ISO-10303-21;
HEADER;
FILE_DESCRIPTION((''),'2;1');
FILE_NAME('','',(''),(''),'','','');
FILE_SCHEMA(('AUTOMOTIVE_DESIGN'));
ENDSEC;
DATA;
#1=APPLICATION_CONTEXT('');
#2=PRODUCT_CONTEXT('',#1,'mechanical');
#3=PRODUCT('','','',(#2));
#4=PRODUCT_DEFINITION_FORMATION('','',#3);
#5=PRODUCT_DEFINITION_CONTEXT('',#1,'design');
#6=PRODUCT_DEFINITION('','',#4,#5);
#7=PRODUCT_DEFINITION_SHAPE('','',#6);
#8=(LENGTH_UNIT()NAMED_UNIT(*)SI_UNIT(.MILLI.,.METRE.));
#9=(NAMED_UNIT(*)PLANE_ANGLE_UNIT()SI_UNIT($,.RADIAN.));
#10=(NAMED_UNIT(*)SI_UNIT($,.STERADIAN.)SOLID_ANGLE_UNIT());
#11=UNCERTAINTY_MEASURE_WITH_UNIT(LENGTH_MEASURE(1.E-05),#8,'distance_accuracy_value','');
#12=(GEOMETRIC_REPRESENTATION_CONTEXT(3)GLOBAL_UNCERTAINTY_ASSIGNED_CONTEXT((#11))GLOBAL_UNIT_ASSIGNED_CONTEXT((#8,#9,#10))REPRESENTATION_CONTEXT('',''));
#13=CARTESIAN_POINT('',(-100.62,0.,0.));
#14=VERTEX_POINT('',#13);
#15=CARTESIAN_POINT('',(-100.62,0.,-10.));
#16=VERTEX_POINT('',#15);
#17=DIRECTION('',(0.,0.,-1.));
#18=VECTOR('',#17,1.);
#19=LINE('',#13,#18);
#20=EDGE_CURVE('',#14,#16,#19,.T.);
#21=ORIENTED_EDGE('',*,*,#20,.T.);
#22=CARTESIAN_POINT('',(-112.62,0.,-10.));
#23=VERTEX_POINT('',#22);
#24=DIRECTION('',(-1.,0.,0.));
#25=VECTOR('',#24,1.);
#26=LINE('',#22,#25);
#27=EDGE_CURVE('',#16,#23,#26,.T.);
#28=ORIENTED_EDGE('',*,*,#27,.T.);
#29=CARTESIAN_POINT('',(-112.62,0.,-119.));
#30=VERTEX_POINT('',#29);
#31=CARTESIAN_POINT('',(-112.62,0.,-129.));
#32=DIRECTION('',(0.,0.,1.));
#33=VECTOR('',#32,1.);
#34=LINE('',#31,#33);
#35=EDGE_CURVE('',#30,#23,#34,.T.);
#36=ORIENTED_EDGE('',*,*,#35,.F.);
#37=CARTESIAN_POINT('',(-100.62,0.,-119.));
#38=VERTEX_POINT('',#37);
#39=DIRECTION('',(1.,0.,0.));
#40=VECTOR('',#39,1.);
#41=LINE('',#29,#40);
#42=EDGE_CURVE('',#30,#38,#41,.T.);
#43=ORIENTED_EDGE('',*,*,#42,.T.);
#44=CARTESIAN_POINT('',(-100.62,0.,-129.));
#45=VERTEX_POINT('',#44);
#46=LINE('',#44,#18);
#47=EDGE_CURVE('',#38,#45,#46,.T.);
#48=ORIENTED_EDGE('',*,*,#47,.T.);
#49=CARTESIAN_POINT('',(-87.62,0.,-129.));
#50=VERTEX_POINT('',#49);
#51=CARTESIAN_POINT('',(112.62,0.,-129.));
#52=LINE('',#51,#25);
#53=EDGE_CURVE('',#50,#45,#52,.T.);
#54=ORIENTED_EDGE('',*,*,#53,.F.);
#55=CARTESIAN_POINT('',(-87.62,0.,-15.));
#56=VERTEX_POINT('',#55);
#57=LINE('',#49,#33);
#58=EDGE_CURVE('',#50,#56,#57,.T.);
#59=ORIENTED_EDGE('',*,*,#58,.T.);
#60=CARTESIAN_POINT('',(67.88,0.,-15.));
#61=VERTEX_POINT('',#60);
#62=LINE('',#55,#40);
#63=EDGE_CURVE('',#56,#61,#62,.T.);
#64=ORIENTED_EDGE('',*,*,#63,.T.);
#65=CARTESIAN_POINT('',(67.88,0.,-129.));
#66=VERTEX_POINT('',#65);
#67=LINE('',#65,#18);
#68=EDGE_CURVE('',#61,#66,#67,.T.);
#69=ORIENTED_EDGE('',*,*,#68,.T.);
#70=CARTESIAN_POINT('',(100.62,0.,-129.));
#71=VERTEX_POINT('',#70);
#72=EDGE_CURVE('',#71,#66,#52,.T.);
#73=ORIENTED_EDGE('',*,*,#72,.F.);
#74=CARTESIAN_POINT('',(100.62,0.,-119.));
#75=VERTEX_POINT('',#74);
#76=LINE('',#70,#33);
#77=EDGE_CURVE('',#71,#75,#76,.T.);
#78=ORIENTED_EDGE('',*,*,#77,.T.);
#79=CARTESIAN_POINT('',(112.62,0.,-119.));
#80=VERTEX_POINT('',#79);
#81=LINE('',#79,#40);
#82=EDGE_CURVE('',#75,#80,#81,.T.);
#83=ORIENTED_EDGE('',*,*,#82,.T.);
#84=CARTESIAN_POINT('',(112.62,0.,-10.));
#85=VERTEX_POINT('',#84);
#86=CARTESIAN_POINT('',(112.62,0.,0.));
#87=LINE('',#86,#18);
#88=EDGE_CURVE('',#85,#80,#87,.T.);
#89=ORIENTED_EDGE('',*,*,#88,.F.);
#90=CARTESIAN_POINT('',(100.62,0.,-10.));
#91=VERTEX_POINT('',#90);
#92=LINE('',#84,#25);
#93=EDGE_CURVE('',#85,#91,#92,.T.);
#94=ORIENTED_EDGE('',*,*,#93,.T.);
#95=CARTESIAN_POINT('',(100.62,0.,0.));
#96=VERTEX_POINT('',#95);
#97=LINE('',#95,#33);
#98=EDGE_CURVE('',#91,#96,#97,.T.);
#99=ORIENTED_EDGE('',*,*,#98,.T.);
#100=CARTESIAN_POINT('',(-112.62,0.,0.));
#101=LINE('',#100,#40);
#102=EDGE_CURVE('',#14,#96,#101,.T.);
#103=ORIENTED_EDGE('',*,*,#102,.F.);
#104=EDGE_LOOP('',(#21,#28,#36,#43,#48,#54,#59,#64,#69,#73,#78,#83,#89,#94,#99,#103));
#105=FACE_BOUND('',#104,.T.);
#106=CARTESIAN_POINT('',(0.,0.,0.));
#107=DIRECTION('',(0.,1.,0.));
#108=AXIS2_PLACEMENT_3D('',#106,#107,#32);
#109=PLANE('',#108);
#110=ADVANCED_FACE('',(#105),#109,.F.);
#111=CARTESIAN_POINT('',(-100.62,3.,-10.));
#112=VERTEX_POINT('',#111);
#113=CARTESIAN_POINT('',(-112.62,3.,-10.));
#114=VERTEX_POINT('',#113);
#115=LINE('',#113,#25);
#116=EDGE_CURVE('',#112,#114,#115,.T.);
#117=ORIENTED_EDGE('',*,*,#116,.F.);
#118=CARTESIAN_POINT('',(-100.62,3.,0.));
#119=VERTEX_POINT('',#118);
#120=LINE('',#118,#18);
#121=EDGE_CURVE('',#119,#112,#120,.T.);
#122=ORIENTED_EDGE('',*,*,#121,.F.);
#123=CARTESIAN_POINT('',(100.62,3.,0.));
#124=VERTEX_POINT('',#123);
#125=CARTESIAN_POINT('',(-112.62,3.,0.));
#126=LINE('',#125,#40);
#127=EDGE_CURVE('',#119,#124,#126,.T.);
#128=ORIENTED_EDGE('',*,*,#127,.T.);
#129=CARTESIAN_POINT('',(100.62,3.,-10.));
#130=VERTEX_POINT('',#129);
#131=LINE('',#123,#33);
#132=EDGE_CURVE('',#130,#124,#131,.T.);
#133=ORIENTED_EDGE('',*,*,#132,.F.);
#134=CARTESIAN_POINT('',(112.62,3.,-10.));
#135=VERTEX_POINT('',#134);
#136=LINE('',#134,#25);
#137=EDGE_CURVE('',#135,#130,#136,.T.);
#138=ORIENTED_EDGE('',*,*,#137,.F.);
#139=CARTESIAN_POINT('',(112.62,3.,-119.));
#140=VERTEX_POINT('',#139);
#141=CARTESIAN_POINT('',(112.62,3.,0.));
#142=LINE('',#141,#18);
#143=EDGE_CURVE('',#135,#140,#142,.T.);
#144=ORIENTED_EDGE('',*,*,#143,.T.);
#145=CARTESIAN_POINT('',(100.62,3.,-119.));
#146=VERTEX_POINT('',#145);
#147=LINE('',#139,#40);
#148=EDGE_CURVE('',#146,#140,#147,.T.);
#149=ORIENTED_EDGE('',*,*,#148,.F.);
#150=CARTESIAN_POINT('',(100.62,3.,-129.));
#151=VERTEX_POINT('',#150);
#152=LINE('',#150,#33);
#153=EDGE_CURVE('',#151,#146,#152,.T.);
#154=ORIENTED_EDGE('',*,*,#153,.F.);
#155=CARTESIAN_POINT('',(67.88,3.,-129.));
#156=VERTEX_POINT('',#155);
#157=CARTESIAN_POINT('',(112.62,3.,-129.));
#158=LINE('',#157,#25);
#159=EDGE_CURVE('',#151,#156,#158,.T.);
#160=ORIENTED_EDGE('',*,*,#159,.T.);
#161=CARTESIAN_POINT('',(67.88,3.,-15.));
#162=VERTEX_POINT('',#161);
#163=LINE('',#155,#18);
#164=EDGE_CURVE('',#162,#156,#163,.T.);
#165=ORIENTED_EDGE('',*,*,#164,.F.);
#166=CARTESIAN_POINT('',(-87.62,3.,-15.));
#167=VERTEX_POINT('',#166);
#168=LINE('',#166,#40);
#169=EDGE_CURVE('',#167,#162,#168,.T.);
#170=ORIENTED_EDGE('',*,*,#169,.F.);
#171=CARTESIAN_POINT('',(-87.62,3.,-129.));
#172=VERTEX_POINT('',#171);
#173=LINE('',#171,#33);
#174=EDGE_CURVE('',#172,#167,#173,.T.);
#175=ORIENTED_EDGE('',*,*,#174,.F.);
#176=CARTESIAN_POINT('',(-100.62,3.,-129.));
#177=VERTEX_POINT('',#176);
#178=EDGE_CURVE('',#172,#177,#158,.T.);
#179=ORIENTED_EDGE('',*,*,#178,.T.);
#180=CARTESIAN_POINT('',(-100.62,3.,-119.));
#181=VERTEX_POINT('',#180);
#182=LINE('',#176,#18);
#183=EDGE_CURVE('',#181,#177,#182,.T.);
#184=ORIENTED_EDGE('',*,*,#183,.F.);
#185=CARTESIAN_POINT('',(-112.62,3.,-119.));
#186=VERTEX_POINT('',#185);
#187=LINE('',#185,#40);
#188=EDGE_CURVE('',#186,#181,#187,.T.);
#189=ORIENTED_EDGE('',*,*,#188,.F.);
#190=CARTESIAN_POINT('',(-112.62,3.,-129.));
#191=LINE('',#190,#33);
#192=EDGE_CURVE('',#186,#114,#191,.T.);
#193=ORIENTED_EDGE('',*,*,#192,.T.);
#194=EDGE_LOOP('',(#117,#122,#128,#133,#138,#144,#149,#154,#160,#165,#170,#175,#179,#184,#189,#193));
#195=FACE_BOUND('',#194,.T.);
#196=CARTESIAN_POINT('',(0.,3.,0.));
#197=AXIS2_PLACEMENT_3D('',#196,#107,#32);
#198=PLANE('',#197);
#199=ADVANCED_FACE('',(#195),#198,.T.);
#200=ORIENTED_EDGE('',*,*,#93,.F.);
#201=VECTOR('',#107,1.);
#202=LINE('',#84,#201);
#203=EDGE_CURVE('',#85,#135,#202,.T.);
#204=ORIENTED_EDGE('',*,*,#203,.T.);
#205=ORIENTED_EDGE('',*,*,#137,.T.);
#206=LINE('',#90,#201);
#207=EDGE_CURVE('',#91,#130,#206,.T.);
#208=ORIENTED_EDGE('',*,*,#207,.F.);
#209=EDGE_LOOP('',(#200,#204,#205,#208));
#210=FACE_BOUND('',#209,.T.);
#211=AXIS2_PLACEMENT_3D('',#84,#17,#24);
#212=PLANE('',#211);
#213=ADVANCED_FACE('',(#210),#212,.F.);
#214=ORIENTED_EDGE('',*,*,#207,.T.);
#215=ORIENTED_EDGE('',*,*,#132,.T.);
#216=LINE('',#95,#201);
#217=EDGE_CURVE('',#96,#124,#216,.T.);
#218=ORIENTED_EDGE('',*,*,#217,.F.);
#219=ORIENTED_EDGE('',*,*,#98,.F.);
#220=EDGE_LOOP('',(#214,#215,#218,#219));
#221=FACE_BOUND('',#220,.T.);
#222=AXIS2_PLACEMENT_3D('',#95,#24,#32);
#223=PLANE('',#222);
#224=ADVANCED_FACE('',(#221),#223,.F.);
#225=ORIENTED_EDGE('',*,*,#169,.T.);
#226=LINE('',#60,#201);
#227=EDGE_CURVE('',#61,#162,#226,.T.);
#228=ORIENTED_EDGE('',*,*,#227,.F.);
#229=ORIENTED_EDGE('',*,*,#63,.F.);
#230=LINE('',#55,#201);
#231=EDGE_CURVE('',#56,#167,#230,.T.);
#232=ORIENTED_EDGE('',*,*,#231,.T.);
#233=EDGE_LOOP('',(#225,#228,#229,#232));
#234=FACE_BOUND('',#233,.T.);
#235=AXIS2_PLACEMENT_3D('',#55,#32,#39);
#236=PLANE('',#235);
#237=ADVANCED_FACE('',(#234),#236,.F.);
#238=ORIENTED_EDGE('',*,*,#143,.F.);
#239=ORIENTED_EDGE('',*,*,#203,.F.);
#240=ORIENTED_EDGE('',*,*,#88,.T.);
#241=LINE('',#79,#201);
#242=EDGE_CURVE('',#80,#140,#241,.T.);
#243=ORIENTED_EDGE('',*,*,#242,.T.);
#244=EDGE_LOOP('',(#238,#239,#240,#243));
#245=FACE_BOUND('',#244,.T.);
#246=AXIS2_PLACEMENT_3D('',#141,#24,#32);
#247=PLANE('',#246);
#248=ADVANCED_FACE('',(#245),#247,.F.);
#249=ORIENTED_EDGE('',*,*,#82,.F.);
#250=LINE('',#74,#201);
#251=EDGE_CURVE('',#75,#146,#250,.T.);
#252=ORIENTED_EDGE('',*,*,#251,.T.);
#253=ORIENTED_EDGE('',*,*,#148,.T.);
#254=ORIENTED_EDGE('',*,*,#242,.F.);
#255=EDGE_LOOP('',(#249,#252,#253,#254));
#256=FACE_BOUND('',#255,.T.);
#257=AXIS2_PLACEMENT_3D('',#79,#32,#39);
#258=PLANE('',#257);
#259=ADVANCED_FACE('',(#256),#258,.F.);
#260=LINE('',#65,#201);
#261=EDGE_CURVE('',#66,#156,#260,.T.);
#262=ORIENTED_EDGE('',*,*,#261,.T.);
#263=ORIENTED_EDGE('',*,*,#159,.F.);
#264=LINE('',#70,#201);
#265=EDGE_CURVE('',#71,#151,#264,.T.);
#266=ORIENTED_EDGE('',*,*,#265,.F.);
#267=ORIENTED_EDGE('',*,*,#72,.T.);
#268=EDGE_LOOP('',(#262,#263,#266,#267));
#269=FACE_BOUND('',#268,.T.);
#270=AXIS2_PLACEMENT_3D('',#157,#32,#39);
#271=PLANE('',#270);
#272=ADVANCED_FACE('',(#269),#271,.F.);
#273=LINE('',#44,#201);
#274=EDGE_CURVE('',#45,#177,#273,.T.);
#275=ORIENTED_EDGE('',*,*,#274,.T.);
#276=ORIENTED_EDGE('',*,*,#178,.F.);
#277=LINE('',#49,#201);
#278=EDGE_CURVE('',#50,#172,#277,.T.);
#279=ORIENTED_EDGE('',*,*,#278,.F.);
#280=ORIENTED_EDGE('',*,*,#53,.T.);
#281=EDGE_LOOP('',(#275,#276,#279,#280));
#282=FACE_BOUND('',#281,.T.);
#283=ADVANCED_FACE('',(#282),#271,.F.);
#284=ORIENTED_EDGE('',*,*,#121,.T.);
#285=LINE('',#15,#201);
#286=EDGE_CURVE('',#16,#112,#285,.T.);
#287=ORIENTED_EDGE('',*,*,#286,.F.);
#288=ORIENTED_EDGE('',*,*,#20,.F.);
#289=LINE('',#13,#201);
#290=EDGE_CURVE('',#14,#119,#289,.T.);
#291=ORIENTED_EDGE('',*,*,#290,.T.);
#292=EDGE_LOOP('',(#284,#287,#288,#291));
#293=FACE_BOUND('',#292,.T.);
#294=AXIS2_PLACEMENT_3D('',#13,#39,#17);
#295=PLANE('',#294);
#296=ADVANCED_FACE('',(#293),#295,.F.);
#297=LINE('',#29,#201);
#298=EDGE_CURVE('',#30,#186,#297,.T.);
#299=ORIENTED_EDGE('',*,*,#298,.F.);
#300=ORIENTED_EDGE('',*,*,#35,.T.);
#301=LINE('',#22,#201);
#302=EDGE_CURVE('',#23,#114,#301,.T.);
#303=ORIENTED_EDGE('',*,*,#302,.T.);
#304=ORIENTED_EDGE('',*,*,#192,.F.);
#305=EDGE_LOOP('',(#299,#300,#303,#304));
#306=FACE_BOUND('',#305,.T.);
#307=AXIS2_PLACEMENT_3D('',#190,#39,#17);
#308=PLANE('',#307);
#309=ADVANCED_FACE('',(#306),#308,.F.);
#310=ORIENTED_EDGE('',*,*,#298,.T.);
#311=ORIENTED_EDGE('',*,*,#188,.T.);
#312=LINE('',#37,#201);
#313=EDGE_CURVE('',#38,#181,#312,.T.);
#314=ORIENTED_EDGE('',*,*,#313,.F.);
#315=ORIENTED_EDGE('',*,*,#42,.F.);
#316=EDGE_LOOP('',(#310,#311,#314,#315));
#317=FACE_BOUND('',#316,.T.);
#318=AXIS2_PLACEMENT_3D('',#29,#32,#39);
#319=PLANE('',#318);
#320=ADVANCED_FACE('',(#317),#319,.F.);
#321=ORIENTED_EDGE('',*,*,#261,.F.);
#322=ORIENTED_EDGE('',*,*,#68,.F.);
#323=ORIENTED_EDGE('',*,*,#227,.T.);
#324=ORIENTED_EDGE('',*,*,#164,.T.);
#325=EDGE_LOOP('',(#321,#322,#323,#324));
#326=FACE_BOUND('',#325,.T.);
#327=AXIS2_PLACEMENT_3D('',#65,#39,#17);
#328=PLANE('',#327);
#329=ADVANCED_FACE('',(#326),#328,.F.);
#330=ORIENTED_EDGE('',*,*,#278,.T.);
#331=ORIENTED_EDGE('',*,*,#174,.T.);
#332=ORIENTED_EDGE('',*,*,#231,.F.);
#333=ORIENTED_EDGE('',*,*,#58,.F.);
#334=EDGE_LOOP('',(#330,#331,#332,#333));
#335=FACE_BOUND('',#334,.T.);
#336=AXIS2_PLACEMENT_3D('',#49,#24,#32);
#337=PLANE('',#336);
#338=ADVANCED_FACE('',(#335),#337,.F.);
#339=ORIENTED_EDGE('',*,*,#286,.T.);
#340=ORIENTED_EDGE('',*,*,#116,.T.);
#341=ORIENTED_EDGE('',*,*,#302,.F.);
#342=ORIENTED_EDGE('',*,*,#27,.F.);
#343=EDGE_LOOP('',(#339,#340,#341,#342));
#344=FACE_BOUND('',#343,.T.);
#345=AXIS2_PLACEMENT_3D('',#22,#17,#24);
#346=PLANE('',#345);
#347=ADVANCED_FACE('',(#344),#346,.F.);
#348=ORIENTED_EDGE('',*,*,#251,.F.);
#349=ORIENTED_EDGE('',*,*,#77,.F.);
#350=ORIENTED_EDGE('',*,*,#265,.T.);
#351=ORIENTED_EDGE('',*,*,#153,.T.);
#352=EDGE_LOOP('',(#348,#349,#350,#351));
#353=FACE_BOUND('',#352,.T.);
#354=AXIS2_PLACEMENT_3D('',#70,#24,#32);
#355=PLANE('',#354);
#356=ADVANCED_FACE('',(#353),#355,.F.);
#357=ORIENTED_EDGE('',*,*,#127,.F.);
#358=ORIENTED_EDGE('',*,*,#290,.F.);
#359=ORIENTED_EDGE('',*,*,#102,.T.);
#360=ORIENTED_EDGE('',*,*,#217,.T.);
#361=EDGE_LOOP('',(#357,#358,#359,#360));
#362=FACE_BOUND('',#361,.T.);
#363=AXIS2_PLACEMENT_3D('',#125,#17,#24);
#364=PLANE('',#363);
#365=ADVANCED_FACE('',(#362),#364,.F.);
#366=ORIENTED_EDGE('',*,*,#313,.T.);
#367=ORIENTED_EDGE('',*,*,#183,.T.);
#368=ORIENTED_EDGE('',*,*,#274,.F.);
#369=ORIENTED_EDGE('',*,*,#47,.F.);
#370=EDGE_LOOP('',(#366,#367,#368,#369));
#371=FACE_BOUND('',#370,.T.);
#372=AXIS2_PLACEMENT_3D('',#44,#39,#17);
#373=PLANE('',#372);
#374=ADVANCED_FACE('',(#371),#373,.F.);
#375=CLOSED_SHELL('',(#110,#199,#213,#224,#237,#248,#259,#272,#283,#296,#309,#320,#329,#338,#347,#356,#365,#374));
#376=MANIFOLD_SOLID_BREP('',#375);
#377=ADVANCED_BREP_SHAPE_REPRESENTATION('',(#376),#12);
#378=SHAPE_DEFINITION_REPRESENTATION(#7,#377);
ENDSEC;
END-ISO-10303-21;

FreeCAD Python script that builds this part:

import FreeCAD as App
import Part
import Sketcher
from FreeCAD import Vector


def add_polygon(sketch, points):
    """Adds a closed chain of lines whose ends are joined by coincident constraints."""
    first, n = sketch.GeometryCount, len(points)
    for a, b in zip(points, points[1:] + points[:1]):
        sketch.addGeometry(Part.LineSegment(App.Vector(*a, 0), App.Vector(*b, 0)), False)
    for i in range(n):
        sketch.addConstraint(Sketcher.Constraint("Coincident", first + i, 2, first + (i + 1) % n, 1))

doc = App.newDocument("Part")
body = doc.addObject("PartDesign::Body", "Body")

sketch1 = doc.addObject("Sketcher::SketchObject", "Sketch")
body.addObject(sketch1)
sketch1.AttachmentSupport = (doc.XZ_Plane, [""])
sketch1.MapMode = "FlatFace"
add_polygon(sketch1, [(-113, -129), (-113, 0), (113, 0), (113, -129)])
sketch1.addConstraint(Sketcher.Constraint("Vertical", 0))
sketch1.addConstraint(Sketcher.Constraint("Horizontal", 1))
sketch1.addConstraint(Sketcher.Constraint("Vertical", 2))
sketch1.addConstraint(Sketcher.Constraint("Horizontal", 3))
sketch1.addConstraint(Sketcher.Constraint("Symmetric", 0, 2, 1, 2, -1, 1))
sketch1.addConstraint(Sketcher.Constraint("DistanceY", 0, 1, 0, 2, 129.0))
sketch1.addConstraint(Sketcher.Constraint("DistanceX", 1, 1, 1, 2, 225.24))
pad1 = doc.addObject("PartDesign::Pad", "Pad")
body.addObject(pad1)
pad1.Profile = sketch1
pad1.Length = 3
pad1.Reversed = True

sketch2 = doc.addObject("Sketcher::SketchObject", "Sketch001")
body.addObject(sketch2)
sketch2.AttachmentSupport = (doc.XZ_Plane, [""])
sketch2.MapMode = "FlatFace"
sketch2.AttachmentOffset = App.Placement(Vector(0, 0, -3), App.Rotation())
add_polygon(sketch2, [(-113, -129), (-113, -119), (-101, -119), (-101, -129)])
add_polygon(sketch2, [(101, -129), (101, -119), (113, -119), (113, -129)])
add_polygon(sketch2, [(101, -10), (101, 0), (113, 0), (113, -10)])
add_polygon(sketch2, [(-113, -10), (-113, 0), (-101, 0), (-101, -10)])
add_polygon(sketch2, [(-88, -129), (-88, -15), (68, -15), (68, -129)])
sketch2.addConstraint(Sketcher.Constraint("Vertical", 0))
sketch2.addConstraint(Sketcher.Constraint("Horizontal", 1))
sketch2.addConstraint(Sketcher.Constraint("Vertical", 2))
sketch2.addConstraint(Sketcher.Constraint("Horizontal", 3))
sketch2.addConstraint(Sketcher.Constraint("Vertical", 4))
sketch2.addConstraint(Sketcher.Constraint("Horizontal", 5))
sketch2.addConstraint(Sketcher.Constraint("Vertical", 6))
sketch2.addConstraint(Sketcher.Constraint("Horizontal", 7))
sketch2.addConstraint(Sketcher.Constraint("Vertical", 8))
sketch2.addConstraint(Sketcher.Constraint("Horizontal", 9))
sketch2.addConstraint(Sketcher.Constraint("Vertical", 10))
sketch2.addConstraint(Sketcher.Constraint("Horizontal", 11))
sketch2.addConstraint(Sketcher.Constraint("Vertical", 12))
sketch2.addConstraint(Sketcher.Constraint("Horizontal", 13))
sketch2.addConstraint(Sketcher.Constraint("Vertical", 14))
sketch2.addConstraint(Sketcher.Constraint("Horizontal", 15))
sketch2.addConstraint(Sketcher.Constraint("Vertical", 16))
sketch2.addConstraint(Sketcher.Constraint("Horizontal", 17))
sketch2.addConstraint(Sketcher.Constraint("Vertical", 18))
sketch2.addConstraint(Sketcher.Constraint("Horizontal", 19))
sketch2.addConstraint(Sketcher.Constraint("Symmetric", 9, 2, 12, 2, -1, 1))
sketch2.addConstraint(Sketcher.Constraint("Symmetric", 1, 2, 4, 2, -2))
sketch2.addConstraint(Sketcher.Constraint("Symmetric", 3, 2, 6, 2, -2))
sketch2.addConstraint(Sketcher.Constraint("Symmetric", 8, 2, 13, 2, -2))
sketch2.addConstraint(Sketcher.Constraint("Horizontal", 11, 2, 14, 2))
sketch2.addConstraint(Sketcher.Constraint("Horizontal", 7, 2, 18, 2))
sketch2.addConstraint(Sketcher.Constraint("Vertical", 7, 2, 8, 2))
sketch2.addConstraint(Sketcher.Constraint("Vertical", 6, 2, 9, 2))
sketch2.addConstraint(Sketcher.Constraint("Equal", 6, 8))
sketch2.addConstraint(Sketcher.Constraint("DistanceX", 1, 1, 1, 2, 12.0))
sketch2.addConstraint(Sketcher.Constraint("DistanceY", 0, 1, 0, 2, 10.0))
sketch2.addConstraint(Sketcher.Constraint("DistanceY", 16, 1, 16, 2, 114.0))
sketch2.addConstraint(Sketcher.Constraint("DistanceX", 17, 1, 17, 2, 155.5))
sketch2.addConstraint(Sketcher.Constraint("DistanceY", 0, 2, -1, 1, 119.0))
sketch2.addConstraint(Sketcher.Constraint("DistanceX", 14, 2, 16, 2, 13.0))
sketch2.addConstraint(Sketcher.Constraint("DistanceX", 0, 2, -1, 1, 112.62))
pocket1 = doc.addObject("PartDesign::Pocket", "Pocket")
body.addObject(pocket1)
pocket1.Profile = sketch2
pocket1.Type = "ThroughAll"
pocket1.Reversed = True

doc.recompute()
